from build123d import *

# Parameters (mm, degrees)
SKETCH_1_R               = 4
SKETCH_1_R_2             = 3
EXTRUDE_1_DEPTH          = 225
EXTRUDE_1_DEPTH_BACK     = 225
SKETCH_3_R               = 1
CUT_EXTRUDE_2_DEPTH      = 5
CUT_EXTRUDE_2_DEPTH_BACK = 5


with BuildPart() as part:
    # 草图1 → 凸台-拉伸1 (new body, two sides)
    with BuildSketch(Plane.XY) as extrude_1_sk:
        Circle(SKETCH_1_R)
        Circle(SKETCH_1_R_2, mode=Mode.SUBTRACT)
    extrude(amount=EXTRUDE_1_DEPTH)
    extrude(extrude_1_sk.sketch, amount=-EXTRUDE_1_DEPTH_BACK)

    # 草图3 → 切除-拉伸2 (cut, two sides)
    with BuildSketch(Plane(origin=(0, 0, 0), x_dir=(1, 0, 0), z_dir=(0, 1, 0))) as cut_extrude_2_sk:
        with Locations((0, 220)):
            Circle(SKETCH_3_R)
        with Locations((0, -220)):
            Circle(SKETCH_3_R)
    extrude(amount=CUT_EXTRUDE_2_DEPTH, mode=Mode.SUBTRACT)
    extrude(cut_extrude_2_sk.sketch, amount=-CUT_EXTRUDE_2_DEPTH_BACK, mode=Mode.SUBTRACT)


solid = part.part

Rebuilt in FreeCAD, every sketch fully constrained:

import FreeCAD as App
import Part
import Sketcher
from FreeCAD import Vector

doc = App.newDocument("Part")
body = doc.addObject("PartDesign::Body", "Body")

# Sketch on XY plane
sketch1 = body.newObject("Sketcher::SketchObject", "Sketch")
sketch1.AttachmentSupport = (doc.getObject("XY_Plane"), [""])
sketch1.MapMode = "FlatFace"
sketch1.addGeometry([
    Part.Circle(Vector(0, 0, 0), Vector(0, 0, 1), 4),
    Part.Circle(Vector(0, 0, 0), Vector(0, 0, 1), 3),
], False)
sketch1.addConstraint([
    Sketcher.Constraint("Coincident", 0, 3, -1, 1),
    Sketcher.Constraint("Coincident", 1, 3, -1, 1),
    Sketcher.Constraint("Diameter", 0, 8.0),
    Sketcher.Constraint("Diameter", 1, 6.0),
])
pad1 = body.newObject("PartDesign::Pad", "Pad")
pad1.Profile = sketch1
pad1.Type = "TwoLengths"
pad1.Length = 225
pad1.Length2 = 225

# Sketch on XZ plane
sketch2 = body.newObject("Sketcher::SketchObject", "Sketch001")
sketch2.AttachmentSupport = (doc.getObject("XZ_Plane"), [""])
sketch2.MapMode = "FlatFace"
sketch2.addGeometry([
    Part.Circle(Vector(0, -220, 0), Vector(0, 0, 1), 1),
    Part.Circle(Vector(0, 220, 0), Vector(0, 0, 1), 1),
], False)
sketch2.addConstraint([
    Sketcher.Constraint("Equal", 0, 1),
    Sketcher.Constraint("Symmetric", 0, 3, 1, 3, -1, 1),
    Sketcher.Constraint("PointOnObject", 0, 3, -2),
    Sketcher.Constraint("Diameter", 0, 2.0),
    Sketcher.Constraint("DistanceY", 0, 3, -1, 1, 220.0),
])
pocket1 = body.newObject("PartDesign::Pocket", "Pocket")
pocket1.Profile = sketch2
pocket1.Type = "ThroughAll"
pocket1.Midplane = True

doc.recompute()
